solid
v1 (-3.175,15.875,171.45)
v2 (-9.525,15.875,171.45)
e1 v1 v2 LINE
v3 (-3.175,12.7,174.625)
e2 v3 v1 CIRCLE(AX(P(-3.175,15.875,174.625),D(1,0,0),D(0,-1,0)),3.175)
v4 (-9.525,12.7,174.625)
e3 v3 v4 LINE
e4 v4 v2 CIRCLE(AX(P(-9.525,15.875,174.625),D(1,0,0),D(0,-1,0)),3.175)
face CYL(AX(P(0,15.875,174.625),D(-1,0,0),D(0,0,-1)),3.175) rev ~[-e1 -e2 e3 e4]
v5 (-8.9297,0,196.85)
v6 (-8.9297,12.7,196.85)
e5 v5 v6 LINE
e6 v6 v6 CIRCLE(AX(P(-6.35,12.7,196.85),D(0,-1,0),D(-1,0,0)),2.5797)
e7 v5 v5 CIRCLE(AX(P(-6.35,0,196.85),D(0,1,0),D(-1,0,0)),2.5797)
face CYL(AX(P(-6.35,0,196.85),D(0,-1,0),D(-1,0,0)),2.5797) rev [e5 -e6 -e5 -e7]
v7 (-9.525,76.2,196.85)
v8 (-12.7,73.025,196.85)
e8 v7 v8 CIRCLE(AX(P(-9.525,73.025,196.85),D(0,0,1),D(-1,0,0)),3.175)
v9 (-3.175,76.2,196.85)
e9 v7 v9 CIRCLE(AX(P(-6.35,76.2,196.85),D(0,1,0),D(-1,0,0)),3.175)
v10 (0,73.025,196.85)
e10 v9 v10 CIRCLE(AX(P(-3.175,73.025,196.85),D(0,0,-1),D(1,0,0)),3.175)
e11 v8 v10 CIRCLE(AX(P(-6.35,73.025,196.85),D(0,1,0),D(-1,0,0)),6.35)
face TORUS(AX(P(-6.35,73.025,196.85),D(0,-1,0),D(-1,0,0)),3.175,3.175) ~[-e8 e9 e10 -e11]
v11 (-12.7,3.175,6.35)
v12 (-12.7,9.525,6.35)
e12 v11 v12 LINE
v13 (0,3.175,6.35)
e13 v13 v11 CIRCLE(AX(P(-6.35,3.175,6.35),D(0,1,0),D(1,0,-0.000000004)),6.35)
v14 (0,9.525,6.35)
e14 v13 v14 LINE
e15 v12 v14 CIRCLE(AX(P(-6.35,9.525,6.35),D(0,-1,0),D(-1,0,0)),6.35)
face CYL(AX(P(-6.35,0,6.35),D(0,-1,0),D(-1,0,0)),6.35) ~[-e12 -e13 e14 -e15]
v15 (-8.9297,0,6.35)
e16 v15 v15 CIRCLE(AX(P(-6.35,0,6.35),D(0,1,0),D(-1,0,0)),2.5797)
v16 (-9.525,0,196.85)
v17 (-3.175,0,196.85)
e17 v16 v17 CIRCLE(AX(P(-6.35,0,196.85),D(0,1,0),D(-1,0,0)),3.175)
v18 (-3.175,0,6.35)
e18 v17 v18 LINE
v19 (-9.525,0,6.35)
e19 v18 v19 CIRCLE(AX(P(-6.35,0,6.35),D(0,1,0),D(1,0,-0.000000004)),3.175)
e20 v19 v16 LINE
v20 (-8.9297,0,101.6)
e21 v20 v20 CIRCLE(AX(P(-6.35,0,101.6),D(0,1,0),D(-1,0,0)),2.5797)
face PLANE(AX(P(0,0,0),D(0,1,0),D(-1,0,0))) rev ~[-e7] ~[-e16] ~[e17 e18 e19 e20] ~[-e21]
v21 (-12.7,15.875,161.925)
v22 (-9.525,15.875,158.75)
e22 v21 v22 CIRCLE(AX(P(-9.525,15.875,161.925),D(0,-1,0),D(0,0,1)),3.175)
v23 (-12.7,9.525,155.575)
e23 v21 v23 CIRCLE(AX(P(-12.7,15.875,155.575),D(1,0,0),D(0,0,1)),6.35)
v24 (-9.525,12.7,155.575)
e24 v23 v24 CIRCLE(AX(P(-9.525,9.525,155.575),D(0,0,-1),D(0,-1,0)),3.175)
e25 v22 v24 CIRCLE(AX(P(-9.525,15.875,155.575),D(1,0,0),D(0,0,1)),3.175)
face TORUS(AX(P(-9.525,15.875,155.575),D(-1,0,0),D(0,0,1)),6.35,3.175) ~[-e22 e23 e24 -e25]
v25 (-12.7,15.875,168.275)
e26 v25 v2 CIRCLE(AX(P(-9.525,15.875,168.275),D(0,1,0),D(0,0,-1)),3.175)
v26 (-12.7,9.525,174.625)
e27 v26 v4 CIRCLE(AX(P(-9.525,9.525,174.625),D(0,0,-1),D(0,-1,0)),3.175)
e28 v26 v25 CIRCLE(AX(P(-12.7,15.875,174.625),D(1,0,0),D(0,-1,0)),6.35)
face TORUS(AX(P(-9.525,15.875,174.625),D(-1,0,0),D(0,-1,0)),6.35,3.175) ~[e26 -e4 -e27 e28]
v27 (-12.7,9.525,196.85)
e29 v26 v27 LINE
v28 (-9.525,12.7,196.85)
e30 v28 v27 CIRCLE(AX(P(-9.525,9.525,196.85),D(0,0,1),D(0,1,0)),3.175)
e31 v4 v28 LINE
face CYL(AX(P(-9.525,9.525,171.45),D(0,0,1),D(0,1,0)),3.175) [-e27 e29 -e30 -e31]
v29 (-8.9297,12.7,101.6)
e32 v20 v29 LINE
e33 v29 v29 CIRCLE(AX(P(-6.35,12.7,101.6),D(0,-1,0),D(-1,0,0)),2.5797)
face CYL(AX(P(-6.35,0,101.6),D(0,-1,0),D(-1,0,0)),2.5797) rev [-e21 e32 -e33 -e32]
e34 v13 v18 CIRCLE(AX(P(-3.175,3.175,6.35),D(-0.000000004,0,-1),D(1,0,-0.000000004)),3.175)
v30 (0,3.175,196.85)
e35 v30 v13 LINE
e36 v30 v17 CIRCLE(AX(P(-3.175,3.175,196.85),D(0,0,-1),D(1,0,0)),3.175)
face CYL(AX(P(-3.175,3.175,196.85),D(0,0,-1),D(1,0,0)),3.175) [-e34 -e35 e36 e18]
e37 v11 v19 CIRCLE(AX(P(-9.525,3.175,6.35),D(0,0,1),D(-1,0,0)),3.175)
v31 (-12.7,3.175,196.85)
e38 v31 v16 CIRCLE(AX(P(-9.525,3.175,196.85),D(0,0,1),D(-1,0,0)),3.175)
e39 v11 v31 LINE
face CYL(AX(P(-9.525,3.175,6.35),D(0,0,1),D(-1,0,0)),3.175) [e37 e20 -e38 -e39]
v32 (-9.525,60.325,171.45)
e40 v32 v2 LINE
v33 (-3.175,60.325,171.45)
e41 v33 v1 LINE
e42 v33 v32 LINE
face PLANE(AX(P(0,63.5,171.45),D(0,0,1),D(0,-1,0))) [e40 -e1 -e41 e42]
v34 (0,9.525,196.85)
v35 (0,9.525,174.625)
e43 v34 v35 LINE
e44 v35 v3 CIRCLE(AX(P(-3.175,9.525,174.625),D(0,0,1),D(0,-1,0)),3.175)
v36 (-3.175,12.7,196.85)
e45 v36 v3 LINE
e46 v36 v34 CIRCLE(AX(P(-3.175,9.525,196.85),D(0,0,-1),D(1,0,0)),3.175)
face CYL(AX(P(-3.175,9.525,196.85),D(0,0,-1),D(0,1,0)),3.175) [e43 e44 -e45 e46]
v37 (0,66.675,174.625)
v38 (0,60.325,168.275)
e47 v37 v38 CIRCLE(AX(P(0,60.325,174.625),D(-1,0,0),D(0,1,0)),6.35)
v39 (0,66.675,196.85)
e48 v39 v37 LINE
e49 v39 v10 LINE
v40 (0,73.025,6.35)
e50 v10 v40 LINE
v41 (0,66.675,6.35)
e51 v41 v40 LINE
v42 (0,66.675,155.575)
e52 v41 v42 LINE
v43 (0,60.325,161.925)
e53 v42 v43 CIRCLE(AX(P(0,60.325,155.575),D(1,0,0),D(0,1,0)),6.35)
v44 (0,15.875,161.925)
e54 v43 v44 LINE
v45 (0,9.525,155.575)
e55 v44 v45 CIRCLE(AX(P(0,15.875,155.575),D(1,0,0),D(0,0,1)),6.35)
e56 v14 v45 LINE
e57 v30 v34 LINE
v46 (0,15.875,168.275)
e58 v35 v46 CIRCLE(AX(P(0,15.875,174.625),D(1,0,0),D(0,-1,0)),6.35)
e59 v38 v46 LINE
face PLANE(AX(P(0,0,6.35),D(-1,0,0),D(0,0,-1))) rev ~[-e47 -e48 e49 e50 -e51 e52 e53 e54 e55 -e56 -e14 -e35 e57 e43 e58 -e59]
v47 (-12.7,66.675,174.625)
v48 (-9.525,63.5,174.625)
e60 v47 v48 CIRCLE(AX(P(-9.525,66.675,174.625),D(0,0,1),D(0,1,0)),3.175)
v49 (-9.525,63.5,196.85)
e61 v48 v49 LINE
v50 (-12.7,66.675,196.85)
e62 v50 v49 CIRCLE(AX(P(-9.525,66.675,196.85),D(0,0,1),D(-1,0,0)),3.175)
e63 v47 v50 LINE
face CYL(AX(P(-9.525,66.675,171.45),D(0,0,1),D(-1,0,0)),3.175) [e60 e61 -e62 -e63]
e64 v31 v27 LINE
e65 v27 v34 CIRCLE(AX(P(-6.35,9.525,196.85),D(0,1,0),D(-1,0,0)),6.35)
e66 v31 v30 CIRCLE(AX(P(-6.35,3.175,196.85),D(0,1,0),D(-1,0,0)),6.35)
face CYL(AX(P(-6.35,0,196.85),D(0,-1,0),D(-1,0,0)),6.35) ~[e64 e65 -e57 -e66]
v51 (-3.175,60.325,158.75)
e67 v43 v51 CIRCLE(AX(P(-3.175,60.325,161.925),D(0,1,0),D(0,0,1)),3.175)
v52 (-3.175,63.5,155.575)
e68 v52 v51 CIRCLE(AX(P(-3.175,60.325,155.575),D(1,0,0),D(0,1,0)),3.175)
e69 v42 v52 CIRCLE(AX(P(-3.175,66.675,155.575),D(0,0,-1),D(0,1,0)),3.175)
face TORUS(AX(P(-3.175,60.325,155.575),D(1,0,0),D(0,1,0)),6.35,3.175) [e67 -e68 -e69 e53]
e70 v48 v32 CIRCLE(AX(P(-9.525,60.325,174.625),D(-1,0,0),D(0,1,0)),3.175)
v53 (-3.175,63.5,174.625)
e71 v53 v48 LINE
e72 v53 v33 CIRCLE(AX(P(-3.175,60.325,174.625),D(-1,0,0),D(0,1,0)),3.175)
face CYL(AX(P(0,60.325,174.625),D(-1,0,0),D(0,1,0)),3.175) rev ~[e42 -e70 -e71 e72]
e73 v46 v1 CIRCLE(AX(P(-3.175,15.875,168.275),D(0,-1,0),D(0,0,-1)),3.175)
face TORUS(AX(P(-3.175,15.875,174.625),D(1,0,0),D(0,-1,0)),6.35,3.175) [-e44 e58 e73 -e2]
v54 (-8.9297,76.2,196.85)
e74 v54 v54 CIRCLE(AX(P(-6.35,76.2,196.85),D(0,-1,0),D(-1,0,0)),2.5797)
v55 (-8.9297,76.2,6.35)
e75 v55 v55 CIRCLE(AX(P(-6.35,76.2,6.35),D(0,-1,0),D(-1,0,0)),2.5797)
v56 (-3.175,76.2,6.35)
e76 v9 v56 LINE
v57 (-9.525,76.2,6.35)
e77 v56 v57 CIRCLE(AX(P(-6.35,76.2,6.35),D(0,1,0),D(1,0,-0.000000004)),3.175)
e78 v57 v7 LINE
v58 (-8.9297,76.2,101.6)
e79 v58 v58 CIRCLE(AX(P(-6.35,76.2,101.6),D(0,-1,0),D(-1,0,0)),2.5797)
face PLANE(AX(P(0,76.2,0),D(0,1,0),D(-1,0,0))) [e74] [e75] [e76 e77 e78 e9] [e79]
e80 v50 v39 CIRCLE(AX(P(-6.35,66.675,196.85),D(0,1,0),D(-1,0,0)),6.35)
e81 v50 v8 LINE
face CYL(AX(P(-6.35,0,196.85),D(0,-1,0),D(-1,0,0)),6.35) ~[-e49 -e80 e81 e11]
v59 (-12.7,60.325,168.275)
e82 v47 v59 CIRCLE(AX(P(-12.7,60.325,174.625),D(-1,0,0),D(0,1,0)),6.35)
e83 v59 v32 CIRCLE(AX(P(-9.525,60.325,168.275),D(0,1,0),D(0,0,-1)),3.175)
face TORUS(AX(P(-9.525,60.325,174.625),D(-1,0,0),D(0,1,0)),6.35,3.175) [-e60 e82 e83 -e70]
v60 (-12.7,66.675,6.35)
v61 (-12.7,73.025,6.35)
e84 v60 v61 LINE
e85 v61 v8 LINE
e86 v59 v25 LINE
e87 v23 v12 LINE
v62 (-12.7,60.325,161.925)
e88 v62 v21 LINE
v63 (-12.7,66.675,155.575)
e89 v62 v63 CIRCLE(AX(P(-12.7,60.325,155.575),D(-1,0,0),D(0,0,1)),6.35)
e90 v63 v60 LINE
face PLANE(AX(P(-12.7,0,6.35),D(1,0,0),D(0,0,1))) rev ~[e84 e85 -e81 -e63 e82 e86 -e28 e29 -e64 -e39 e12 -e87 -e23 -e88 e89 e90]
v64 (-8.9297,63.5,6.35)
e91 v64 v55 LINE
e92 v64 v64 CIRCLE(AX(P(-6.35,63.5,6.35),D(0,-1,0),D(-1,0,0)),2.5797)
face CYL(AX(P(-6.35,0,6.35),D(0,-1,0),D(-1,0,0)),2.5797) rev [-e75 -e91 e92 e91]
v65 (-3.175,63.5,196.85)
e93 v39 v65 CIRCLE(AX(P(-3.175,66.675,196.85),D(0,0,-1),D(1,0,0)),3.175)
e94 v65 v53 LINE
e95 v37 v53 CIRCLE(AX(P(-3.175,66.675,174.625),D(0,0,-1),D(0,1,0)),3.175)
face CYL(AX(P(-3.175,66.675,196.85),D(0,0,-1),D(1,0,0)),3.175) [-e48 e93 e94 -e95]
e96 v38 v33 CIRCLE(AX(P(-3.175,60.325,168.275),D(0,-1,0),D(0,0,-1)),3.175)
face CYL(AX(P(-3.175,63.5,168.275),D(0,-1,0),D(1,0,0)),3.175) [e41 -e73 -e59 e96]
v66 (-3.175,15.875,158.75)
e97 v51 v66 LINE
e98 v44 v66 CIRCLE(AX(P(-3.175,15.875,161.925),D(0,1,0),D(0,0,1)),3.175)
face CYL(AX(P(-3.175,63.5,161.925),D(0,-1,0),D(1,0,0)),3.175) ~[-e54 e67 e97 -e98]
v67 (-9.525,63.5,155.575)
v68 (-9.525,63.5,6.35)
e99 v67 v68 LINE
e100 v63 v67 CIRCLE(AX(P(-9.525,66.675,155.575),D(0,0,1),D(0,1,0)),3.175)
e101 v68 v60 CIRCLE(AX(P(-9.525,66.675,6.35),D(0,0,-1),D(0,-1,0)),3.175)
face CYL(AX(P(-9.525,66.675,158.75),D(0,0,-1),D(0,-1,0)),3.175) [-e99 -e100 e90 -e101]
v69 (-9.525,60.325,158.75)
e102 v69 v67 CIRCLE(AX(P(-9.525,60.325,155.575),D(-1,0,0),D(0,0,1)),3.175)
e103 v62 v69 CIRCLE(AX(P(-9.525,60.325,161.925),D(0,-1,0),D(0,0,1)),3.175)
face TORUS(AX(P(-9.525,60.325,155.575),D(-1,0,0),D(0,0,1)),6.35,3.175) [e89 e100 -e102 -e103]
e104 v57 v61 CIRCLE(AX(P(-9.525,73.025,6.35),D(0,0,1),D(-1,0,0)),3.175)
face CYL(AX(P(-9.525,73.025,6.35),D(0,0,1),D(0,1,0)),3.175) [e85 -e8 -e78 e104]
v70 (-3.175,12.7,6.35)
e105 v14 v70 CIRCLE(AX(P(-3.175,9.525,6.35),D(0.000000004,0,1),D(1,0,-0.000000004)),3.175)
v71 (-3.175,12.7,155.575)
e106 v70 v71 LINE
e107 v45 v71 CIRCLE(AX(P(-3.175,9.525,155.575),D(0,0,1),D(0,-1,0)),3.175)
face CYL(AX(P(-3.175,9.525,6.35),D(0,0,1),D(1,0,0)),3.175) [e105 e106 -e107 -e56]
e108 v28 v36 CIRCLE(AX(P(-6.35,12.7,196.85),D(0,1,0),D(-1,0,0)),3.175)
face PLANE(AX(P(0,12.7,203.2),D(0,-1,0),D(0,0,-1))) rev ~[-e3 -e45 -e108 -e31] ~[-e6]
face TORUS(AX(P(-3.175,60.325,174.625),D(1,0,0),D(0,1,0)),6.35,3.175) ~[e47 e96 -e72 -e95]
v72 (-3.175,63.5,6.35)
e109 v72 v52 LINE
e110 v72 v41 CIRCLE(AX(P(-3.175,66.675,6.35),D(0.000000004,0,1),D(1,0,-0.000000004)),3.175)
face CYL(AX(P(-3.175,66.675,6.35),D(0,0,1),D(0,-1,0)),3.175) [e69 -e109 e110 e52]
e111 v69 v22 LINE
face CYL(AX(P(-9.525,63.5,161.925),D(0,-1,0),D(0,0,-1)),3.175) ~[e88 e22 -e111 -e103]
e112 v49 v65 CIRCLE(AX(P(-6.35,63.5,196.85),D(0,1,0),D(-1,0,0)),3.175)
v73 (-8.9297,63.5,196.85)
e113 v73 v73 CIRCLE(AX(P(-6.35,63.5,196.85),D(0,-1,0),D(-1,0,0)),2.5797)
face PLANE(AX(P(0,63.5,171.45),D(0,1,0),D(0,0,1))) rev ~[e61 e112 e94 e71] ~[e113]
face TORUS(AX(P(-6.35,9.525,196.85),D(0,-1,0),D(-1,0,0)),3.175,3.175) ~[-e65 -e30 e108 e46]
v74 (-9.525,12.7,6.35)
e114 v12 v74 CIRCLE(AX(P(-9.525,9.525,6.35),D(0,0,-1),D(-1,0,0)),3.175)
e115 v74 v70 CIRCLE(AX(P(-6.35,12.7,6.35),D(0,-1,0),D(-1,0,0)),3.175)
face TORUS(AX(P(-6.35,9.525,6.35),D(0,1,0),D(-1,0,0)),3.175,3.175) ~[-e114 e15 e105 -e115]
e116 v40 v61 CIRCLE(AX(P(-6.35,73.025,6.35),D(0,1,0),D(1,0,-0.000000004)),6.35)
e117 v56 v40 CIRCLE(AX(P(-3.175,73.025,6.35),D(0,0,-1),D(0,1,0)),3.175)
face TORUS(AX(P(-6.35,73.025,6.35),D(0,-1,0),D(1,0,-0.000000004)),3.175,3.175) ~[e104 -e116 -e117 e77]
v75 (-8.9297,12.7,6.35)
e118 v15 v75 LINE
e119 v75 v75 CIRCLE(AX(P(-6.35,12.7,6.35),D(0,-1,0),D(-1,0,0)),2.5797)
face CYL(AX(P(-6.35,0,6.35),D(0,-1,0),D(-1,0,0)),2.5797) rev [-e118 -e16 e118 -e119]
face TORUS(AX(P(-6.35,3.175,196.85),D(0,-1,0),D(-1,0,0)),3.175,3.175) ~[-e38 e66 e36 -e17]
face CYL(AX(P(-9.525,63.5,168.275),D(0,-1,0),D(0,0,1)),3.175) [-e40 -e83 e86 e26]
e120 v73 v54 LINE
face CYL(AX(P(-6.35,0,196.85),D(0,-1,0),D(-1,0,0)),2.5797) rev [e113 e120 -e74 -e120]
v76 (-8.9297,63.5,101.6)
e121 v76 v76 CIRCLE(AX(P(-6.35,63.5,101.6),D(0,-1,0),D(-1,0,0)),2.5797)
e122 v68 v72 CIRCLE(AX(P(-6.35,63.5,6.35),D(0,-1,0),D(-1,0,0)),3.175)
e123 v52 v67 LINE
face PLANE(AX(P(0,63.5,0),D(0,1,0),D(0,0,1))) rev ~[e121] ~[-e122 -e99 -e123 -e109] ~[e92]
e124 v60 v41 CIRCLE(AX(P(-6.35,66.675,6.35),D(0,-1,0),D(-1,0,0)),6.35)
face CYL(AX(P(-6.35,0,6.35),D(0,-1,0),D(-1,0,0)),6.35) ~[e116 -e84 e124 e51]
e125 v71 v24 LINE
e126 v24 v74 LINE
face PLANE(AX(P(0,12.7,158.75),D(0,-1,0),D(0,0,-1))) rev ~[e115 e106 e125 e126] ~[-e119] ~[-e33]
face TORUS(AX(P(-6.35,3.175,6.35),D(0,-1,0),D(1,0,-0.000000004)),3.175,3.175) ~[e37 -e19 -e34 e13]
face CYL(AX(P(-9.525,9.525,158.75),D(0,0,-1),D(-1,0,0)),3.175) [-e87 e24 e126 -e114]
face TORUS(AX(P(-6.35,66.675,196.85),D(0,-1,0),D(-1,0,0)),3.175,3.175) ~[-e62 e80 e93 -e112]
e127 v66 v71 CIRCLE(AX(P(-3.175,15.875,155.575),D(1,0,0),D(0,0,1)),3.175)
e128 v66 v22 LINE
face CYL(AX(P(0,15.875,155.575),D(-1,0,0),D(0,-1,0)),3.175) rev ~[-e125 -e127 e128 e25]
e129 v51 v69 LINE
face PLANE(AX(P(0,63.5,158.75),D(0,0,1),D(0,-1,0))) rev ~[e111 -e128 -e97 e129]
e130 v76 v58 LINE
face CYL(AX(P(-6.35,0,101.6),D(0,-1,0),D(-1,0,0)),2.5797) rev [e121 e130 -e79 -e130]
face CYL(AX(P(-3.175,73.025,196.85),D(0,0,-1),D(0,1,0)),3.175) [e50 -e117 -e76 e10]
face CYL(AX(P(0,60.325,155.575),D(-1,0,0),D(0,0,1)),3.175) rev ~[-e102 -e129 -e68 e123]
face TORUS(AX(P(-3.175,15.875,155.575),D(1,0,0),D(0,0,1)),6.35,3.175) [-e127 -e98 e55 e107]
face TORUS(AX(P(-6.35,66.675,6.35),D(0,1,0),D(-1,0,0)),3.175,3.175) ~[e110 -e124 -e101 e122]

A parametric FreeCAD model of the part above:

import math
import FreeCAD as App
import Part
import Sketcher
from FreeCAD import Vector
Q = App.Units.Quantity


def edges_at(feature, points):
    """Names of the edges that pass closest to the given points."""
    edges = feature.Shape.Edges
    near = lambda p: min(range(len(edges)), key=lambda i: edges[i].distToShape(Part.Vertex(*p))[0])
    return sorted({f"Edge{near(p) + 1}" for p in points})


def add_polygon(sketch, points):
    """Adds a closed chain of lines whose ends are joined by coincident constraints."""
    first, n = sketch.GeometryCount, len(points)
    for a, b in zip(points, points[1:] + points[:1]):
        sketch.addGeometry(Part.LineSegment(App.Vector(*a, 0), App.Vector(*b, 0)), False)
    for i in range(n):
        sketch.addConstraint(Sketcher.Constraint("Coincident", first + i, 2, first + (i + 1) % n, 1))

doc = App.newDocument("Part")
body = doc.addObject("PartDesign::Body", "Body")

# Sketch on XZ plane
sketch1 = body.newObject("Sketcher::SketchObject", "Sketch")
sketch1.AttachmentSupport = (doc.getObject("XZ_Plane"), [""])
sketch1.MapMode = "FlatFace"
add_polygon(sketch1, [(0, 0), (-13, 0), (-13, 203), (0, 203)])  # lines 0-3
sketch1.addConstraint([
    Sketcher.Constraint("Horizontal", 0),
    Sketcher.Constraint("Vertical", 1),
    Sketcher.Constraint("Horizontal", 2),
    Sketcher.Constraint("Vertical", 3),
    Sketcher.Constraint("Coincident", 3, 2, -1, 1),
    Sketcher.Constraint("DistanceY", 1, 1, 1, 2, Q("8 in")),
    Sketcher.Constraint("DistanceX", 0, 2, 0, 1, Q("0.5 in")),
])
pad1 = body.newObject("PartDesign::Pad", "Pad")
pad1.Profile = sketch1
pad1.Length = Q("3 in")
pad1.Reversed = True

# Sketch on YZ plane
sketch2 = body.newObject("Sketcher::SketchObject", "Sketch001")
sketch2.AttachmentSupport = (doc.getObject("YZ_Plane"), [""])
sketch2.MapMode = "FlatFace"
add_polygon(sketch2, [(64, 203), (13, 203), (13, 171), (64, 171)])  # lines 0-3
add_polygon(sketch2, [(13, 159), (13, 0), (64, 0), (64, 159)])  # lines 4-7
sketch2.addConstraint([
    Sketcher.Constraint("Horizontal", 0),
    Sketcher.Constraint("Vertical", 1),
    Sketcher.Constraint("Horizontal", 2),
    Sketcher.Constraint("Vertical", 3),
    Sketcher.Constraint("Vertical", 4),
    Sketcher.Constraint("Horizontal", 5),
    Sketcher.Constraint("Vertical", 6),
    Sketcher.Constraint("Horizontal", 7),
    Sketcher.Constraint("PointOnObject", 4, 2, -1),
    Sketcher.Constraint("Vertical", 1, 2, 4, 2),
    Sketcher.Constraint("Vertical", 3, 2, 5, 2),
    Sketcher.Constraint("DistanceX", 0, 2, 0, 1, Q("2 in")),
    Sketcher.Constraint("DistanceY", 1, 2, 1, 1, Q("1.25 in")),
    Sketcher.Constraint("DistanceX", -1, 1, 0, 2, Q("0.5 in")),
    Sketcher.Constraint("DistanceY", 6, 2, 2, 2, Q("0.5 in")),
    Sketcher.Constraint("DistanceY", -1, 1, 0, 2, Q("8 in")),
])
pocket1 = body.newObject("PartDesign::Pocket", "Pocket")
pocket1.Profile = sketch2
pocket1.Type = "ThroughAll"

# Sketch on XZ plane
sketch3 = body.newObject("Sketcher::SketchObject", "Sketch002")
sketch3.AttachmentSupport = (doc.getObject("XZ_Plane"), [""])
sketch3.MapMode = "FlatFace"
sketch3.addGeometry([
    Part.LineSegment(Vector(0, 6.3, 0), Vector(0, 0, 0)),  # 0
    Part.LineSegment(Vector(0, 0, 0), Vector(-6.3, 0, 0)),  # 1
    Part.ArcOfCircle(Part.Circle(Vector(-6.3, 6.3, 0), Vector(0, 0, 1), 6.3), math.radians(-90), math.radians(0)),  # 2
    Part.ArcOfCircle(Part.Circle(Vector(-6.3, 6.3, 0), Vector(0, 0, 1), 6.3), math.radians(180), math.radians(270)),  # 3
    Part.LineSegment(Vector(-6.3, 0, 0), Vector(-12.7, 0, 0)),  # 4
    Part.LineSegment(Vector(-12.7, 0, 0), Vector(-12.7, 6.3, 0)),  # 5
    Part.LineSegment(Vector(0, 203.2, 0), Vector(0, 196.8, 0)),  # 6
    Part.ArcOfCircle(Part.Circle(Vector(-6.3, 196.8, 0), Vector(0, 0, 1), 6.3), math.radians(0), math.radians(90)),  # 7
    Part.LineSegment(Vector(-6.3, 203.2, 0), Vector(0, 203.2, 0)),  # 8
    Part.ArcOfCircle(Part.Circle(Vector(-6.3, 196.8, 0), Vector(0, 0, 1), 6.3), math.radians(90), math.radians(180)),  # 9
    Part.LineSegment(Vector(-12.7, 196.8, 0), Vector(-12.7, 203.2, 0)),  # 10
    Part.LineSegment(Vector(-12.7, 203.2, 0), Vector(-6.3, 203.2, 0)),  # 11
    Part.Circle(Vector(-6.3, 6.3, 0), Vector(0, 0, 1), 2.6),  # 12
    Part.Circle(Vector(-6.3, 196.8, 0), Vector(0, 0, 1), 2.6),  # 13
    Part.Circle(Vector(-6.3, 101.6, 0), Vector(0, 0, 1), 2.6),  # 14
], False)
sketch3.addConstraint([
    Sketcher.Constraint("Coincident", 0, 2, 1, 1),
    Sketcher.Constraint("Tangent", 1, 2, 2, 1),
    Sketcher.Constraint("Tangent", 2, 2, 0, 1),
    Sketcher.Constraint("Tangent", 3, 2, 4, 1),
    Sketcher.Constraint("Coincident", 4, 2, 5, 1),
    Sketcher.Constraint("Tangent", 5, 2, 3, 1),
    Sketcher.Constraint("Tangent", 6, 2, 7, 1),
    Sketcher.Constraint("Tangent", 7, 2, 8, 1),
    Sketcher.Constraint("Coincident", 8, 2, 6, 1),
    Sketcher.Constraint("Tangent", 9, 2, 10, 1),
    Sketcher.Constraint("Coincident", 10, 2, 11, 1),
    Sketcher.Constraint("Tangent", 11, 2, 9, 1),
    Sketcher.Constraint("Vertical", 0),
    Sketcher.Constraint("Horizontal", 1),
    Sketcher.Constraint("Horizontal", 4),
    Sketcher.Constraint("Vertical", 5),
    Sketcher.Constraint("Vertical", 6),
    Sketcher.Constraint("Horizontal", 8),
    Sketcher.Constraint("Vertical", 10),
    Sketcher.Constraint("Horizontal", 11),
    Sketcher.Constraint("Coincident", 0, 2, -1, 1),
    Sketcher.Constraint("Coincident", 3, 3, 2, 3),
    Sketcher.Constraint("Coincident", 9, 3, 7, 3),
    Sketcher.Constraint("Coincident", 12, 3, 2, 3),
    Sketcher.Constraint("Coincident", 13, 3, 7, 3),
    Sketcher.Constraint("Equal", 2, 3),
    Sketcher.Constraint("Equal", 3, 7),
    Sketcher.Constraint("Equal", 7, 9),
    Sketcher.Constraint("Equal", 12, 13),
    Sketcher.Constraint("Equal", 13, 14),
    Sketcher.Constraint("PointOnObject", 6, 2, -2),
    Sketcher.Constraint("Vertical", 13, 3, 14, 3),
    Sketcher.Constraint("Radius", 2, Q("0.25 in")),
    Sketcher.Constraint("Diameter", 12, Q("0.203126 in")),
    Sketcher.Constraint("DistanceY", -1, 1, 14, 3, Q("4 in")),
    Sketcher.Constraint("DistanceY", -1, 1, 7, 2, Q("8 in")),
])
pocket2 = body.newObject("PartDesign::Pocket", "Pocket001")
pocket2.Profile = sketch3
pocket2.Type = "ThroughAll"
doc.recompute()

fillet = body.newObject("PartDesign::Fillet", "Fillet")
fillet.Base = (pocket2, edges_at(pocket2, [
    (-12.7, 38.1, 158.75),
    (-6.35, 0, 0),
    (-12.7, 0, 101.6),
    (-6.35, 0, 203.2),
    (0, 0, 101.6),
    (-6.35, 76.2, 203.2),
    (0, 76.2, 101.6),
    (-6.35, 76.2, 0),
    (-12.7, 76.2, 101.6),
    (-6.35, 63.5, 0),
    (-12.7, 63.5, 82.55),
    (0, 63.5, 82.55),
    (-6.35, 12.7, 0),
    (0, 12.7, 82.55),
    (-12.7, 12.7, 82.55),
    (-6.35, 12.7, 158.75),
    (0, 38.1, 158.75),
    (-12.7, 38.1, 171.45),
    (-6.35, 12.7, 171.45),
    (-6.35, 63.5, 171.45),
    (-6.35, 12.7, 203.2),
    (0, 12.7, 184.15),
    (-12.7, 12.7, 184.15),
    (-6.35, 63.5, 203.2),
    (0, 63.5, 184.15),
    (-12.7, 63.5, 184.15),
    (0, 38.1, 171.45),
    (-6.35, 63.5, 158.75),
]))
fillet.Radius = Q("0.125 in")

doc.recompute()
